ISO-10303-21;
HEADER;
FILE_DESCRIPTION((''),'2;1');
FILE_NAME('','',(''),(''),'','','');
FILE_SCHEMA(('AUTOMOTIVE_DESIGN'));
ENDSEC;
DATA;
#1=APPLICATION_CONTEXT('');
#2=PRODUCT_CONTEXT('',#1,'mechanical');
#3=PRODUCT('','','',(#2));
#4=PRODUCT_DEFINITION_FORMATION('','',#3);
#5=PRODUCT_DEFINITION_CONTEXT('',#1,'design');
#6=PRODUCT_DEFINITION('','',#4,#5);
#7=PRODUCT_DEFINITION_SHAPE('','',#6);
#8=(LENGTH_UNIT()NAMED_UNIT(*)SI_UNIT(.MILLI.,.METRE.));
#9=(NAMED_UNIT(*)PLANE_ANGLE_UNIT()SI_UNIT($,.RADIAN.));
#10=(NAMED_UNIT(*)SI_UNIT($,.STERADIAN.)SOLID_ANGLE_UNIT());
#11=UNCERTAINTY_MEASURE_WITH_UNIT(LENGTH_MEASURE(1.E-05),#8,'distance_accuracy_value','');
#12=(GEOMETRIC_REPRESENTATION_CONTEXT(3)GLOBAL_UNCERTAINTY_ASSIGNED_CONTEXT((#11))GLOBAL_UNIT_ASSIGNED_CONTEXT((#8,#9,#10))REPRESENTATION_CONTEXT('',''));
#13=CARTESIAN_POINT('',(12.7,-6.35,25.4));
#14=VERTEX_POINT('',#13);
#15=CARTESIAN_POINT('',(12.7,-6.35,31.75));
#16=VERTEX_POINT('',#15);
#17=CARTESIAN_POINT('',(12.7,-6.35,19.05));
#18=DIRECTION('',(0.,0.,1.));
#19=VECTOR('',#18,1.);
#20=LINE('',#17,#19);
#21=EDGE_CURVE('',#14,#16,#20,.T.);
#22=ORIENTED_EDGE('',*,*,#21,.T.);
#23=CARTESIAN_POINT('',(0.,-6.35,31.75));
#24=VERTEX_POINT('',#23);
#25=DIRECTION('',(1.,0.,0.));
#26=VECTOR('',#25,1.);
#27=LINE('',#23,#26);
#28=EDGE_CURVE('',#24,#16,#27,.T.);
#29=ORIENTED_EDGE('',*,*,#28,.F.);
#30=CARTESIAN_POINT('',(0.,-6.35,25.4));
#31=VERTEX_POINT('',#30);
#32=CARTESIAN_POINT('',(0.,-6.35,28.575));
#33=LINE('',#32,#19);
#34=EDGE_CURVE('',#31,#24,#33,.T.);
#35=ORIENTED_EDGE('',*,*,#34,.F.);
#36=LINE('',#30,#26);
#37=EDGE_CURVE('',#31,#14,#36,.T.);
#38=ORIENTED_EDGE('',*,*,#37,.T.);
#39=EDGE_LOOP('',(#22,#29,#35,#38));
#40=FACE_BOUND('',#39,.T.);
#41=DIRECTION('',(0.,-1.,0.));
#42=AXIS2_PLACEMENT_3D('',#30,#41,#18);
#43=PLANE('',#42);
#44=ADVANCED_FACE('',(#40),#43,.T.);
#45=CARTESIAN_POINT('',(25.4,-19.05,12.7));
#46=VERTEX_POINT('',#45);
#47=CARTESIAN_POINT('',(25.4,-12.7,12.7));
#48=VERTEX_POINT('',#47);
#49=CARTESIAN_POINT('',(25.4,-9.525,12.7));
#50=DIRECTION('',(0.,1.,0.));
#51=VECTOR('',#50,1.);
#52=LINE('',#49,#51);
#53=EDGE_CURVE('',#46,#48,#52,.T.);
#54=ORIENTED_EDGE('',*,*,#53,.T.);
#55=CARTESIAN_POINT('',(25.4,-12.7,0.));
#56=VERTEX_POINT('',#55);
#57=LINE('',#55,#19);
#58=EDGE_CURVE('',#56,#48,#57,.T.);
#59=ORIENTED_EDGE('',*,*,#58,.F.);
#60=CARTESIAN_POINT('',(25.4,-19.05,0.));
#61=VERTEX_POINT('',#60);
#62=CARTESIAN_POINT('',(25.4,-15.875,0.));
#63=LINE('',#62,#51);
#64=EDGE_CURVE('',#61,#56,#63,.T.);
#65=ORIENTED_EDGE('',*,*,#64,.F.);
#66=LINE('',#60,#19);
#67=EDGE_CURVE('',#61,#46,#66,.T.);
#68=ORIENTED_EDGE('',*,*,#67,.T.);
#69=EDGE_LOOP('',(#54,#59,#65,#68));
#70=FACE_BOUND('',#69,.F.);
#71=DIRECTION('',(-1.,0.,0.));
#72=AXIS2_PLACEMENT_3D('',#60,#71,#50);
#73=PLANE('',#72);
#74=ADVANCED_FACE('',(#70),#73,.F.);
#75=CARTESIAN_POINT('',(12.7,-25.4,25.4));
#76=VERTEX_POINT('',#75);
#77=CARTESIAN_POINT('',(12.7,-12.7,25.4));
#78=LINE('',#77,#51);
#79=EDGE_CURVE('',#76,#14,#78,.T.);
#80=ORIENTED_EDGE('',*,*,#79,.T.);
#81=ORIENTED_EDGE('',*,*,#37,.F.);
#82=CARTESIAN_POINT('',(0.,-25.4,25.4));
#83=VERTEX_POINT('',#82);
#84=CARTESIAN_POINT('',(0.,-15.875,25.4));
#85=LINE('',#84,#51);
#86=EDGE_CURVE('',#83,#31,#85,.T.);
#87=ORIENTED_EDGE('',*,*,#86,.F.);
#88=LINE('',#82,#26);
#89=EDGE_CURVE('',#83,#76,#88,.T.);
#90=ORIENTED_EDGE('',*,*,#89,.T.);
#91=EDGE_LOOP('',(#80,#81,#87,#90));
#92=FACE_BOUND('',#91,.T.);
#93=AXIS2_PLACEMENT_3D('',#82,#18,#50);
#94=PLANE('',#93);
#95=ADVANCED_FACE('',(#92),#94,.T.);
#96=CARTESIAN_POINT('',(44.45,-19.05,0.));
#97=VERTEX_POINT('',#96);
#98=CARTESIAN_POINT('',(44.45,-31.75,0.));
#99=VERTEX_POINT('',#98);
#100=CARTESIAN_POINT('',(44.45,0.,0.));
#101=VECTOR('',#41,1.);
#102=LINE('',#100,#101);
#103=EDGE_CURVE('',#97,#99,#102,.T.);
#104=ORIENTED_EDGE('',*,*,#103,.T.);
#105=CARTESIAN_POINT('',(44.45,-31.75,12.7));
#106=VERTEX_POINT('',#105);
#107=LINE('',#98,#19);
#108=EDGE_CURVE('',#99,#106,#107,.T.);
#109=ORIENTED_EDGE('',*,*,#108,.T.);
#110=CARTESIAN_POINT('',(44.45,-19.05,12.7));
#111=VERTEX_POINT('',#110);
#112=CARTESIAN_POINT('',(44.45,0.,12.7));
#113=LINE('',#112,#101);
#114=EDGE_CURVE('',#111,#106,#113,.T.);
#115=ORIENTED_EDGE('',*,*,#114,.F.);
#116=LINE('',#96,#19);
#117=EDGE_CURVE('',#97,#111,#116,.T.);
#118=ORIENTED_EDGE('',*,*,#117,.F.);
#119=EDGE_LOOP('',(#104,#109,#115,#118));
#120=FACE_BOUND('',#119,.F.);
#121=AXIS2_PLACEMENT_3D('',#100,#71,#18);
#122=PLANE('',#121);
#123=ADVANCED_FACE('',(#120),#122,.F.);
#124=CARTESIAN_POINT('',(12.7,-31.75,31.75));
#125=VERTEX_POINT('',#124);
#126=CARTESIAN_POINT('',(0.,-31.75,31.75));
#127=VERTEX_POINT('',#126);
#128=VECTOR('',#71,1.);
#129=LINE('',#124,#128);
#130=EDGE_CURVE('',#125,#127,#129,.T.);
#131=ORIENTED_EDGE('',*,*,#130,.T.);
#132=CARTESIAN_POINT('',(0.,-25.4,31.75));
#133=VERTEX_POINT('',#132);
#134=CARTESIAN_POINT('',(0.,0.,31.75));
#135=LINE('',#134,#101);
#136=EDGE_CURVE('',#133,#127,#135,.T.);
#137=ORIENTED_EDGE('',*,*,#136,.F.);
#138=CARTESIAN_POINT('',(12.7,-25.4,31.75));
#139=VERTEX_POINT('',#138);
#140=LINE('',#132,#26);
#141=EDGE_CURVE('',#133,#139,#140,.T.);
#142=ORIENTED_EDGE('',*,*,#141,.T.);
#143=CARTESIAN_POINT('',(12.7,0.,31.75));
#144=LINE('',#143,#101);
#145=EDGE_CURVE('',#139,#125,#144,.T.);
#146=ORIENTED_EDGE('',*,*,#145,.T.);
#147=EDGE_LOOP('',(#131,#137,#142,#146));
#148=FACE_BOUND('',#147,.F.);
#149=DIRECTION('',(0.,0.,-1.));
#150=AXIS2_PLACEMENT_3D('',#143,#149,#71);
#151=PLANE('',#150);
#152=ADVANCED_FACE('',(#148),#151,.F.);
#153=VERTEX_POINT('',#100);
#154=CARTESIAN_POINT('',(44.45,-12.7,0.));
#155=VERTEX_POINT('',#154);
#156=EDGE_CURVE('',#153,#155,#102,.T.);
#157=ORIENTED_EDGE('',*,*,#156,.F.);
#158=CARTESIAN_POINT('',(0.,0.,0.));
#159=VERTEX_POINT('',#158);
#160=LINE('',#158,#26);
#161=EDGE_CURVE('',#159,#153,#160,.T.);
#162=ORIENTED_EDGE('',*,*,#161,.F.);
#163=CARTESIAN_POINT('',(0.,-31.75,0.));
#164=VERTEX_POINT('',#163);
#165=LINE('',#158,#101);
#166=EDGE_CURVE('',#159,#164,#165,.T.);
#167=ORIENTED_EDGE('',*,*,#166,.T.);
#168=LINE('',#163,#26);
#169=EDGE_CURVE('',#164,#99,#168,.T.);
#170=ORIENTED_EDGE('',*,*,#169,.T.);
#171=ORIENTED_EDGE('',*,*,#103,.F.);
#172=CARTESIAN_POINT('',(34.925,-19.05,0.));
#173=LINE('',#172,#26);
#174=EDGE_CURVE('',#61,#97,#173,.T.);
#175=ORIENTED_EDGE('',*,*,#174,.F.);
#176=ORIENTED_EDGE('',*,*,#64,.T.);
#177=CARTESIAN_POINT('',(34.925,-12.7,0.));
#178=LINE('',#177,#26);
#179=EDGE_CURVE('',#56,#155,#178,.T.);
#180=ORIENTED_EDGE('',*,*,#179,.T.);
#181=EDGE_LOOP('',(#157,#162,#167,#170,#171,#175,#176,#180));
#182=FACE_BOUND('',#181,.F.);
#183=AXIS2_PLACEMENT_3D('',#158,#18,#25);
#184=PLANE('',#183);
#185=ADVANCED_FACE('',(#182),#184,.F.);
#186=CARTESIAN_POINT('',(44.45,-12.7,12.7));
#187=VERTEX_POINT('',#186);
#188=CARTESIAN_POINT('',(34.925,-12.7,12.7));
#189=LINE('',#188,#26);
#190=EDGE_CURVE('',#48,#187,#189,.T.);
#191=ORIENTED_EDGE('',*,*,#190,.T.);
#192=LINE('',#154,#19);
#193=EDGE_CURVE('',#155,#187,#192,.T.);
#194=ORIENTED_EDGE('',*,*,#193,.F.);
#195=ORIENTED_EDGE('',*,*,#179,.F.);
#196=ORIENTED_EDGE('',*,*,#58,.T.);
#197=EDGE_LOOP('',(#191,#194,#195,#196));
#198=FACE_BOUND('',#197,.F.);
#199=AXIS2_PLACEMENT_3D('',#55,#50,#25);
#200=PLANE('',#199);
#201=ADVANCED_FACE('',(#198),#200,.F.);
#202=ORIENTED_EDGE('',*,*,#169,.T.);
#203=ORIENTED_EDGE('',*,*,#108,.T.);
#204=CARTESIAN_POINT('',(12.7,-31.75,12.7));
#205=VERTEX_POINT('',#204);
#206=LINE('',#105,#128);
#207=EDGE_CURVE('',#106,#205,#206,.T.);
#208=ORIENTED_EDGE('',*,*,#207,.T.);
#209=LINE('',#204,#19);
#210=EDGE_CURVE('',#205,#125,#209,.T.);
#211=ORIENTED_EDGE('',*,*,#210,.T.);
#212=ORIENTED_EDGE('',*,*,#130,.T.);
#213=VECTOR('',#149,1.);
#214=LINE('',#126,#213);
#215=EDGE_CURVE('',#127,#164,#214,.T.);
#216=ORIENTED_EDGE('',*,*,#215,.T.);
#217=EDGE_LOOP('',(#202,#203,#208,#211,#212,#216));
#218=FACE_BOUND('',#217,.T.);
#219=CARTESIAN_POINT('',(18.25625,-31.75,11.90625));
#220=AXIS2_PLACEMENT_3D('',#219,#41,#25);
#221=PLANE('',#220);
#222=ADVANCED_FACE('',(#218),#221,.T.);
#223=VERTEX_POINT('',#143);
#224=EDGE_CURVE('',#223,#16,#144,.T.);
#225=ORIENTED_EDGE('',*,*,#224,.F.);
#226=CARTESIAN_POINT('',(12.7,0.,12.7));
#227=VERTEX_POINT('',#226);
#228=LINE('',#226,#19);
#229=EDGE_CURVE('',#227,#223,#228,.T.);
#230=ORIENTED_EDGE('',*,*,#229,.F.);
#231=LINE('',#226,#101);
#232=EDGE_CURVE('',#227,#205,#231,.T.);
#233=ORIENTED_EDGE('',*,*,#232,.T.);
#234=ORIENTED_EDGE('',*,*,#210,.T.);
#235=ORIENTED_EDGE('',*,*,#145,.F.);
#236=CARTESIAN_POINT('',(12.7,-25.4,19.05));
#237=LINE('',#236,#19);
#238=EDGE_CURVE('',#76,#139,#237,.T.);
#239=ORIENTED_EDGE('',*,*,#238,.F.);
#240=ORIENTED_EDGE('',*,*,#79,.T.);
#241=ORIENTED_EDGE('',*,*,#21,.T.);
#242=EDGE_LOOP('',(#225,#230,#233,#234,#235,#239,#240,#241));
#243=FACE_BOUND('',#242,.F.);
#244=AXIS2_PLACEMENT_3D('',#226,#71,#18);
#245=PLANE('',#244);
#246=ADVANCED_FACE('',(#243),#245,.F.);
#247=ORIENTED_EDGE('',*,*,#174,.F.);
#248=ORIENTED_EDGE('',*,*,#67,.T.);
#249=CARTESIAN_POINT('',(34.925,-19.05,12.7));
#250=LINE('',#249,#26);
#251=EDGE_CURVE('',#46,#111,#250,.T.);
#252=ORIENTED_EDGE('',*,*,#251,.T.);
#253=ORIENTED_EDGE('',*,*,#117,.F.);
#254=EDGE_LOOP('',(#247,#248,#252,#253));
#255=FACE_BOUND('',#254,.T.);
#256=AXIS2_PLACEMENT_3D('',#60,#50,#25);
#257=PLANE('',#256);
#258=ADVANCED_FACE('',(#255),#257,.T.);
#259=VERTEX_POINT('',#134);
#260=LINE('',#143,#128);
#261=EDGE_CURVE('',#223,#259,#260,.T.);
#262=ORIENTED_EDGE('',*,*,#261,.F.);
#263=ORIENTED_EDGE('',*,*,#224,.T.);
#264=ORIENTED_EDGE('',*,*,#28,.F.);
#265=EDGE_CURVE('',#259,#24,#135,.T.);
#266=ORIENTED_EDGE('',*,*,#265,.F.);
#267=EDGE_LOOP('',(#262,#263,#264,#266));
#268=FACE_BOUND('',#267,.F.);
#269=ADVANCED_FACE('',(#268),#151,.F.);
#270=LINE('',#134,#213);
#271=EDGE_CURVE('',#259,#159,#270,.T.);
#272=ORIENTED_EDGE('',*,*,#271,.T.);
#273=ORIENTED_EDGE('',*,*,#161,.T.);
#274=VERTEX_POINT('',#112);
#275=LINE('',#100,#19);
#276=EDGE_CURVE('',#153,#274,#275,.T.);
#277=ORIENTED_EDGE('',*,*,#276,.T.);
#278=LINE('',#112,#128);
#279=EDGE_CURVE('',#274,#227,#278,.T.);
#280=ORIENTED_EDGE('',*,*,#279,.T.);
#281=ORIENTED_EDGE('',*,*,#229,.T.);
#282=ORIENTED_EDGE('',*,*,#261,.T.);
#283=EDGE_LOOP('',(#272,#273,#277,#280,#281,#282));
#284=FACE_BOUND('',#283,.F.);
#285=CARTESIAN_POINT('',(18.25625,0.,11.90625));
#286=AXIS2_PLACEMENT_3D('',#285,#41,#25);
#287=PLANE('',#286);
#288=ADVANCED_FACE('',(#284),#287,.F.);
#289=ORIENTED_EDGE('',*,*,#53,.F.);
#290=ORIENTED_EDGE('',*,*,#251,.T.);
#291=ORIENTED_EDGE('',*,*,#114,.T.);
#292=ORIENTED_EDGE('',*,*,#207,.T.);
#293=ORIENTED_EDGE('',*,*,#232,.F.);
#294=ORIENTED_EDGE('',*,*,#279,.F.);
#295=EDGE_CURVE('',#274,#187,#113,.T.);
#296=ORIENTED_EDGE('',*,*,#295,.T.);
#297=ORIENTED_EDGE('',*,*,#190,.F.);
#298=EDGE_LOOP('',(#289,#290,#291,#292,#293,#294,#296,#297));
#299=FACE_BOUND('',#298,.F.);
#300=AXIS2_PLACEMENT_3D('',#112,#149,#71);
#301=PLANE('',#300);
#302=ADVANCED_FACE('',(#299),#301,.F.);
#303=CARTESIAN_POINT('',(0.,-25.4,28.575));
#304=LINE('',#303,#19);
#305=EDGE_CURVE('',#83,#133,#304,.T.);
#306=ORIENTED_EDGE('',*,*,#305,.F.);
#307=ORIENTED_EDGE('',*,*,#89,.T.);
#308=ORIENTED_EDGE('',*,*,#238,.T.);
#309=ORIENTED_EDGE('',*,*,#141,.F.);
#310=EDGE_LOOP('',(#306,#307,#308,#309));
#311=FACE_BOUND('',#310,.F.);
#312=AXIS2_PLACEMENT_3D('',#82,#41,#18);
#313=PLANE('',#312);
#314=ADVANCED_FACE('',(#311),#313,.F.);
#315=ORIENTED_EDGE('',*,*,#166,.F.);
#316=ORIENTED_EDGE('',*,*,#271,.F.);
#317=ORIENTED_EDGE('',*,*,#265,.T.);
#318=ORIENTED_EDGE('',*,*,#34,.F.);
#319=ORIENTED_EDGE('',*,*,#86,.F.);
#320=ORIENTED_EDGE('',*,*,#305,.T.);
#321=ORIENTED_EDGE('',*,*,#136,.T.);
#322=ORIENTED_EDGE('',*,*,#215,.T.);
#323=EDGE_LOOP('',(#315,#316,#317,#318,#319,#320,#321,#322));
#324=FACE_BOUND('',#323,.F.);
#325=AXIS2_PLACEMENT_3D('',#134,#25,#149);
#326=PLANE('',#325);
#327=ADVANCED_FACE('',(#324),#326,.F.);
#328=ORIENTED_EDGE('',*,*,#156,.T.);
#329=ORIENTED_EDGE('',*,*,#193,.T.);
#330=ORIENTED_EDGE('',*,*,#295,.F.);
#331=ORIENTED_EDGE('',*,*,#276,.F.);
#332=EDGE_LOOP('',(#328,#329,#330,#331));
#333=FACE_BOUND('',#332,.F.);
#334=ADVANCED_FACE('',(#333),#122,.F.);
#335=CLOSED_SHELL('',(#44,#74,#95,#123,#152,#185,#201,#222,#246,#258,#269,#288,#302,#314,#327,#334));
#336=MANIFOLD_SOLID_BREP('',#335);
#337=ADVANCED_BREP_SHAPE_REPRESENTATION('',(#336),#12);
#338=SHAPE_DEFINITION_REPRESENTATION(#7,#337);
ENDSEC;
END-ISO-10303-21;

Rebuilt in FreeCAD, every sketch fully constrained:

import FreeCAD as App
import Part
import Sketcher
from FreeCAD import Vector
Q = App.Units.Quantity

doc = App.newDocument("Part")
params = doc.addObject("Spreadsheet::Sheet", "Params")
for row, (alias, value) in enumerate([
    ("sketch1_width", "0.5 in"),
    ("sketch1_width2", "1.75 in"),
    ("pad1_length", "1.25 in"),
    ("sketch2_width", "0.75 in"),
    ("sketch2_height", "0.25 in"),
    ("pocket1_length", "1.09 in"),
    ("sketch3_width", "0.75 in"),
    ("sketch3_height", "0.25 in"),
    ("pocket2_length", "2.847 in"),
], start=1):
    params.set(f"A{row}", alias)
    params.set(f"B{row}", "=" + value)
    params.setAlias(f"B{row}", alias)

body = doc.addObject("PartDesign::Body", "Body")

# Sketch on XZ plane
sketch1 = body.newObject("Sketcher::SketchObject", "Sketch")
sketch1.AttachmentSupport = (doc.getObject("XZ_Plane"), [""])
sketch1.MapMode = "FlatFace"
sketch1.addGeometry([
    Part.LineSegment(Vector(0, 32, 0), Vector(0, 0, 0)),  # 0
    Part.LineSegment(Vector(0, 0, 0), Vector(44, 0, 0)),  # 1
    Part.LineSegment(Vector(44, 0, 0), Vector(44, 13, 0)),  # 2
    Part.LineSegment(Vector(44, 13, 0), Vector(13, 13, 0)),  # 3
    Part.LineSegment(Vector(13, 13, 0), Vector(13, 32, 0)),  # 4
    Part.LineSegment(Vector(13, 32, 0), Vector(0, 32, 0)),  # 5
], False)
sketch1.addConstraint([
    Sketcher.Constraint("Coincident", 0, 2, 1, 1),
    Sketcher.Constraint("Coincident", 1, 2, 2, 1),
    Sketcher.Constraint("Coincident", 2, 2, 3, 1),
    Sketcher.Constraint("Coincident", 3, 2, 4, 1),
    Sketcher.Constraint("Coincident", 4, 2, 5, 1),
    Sketcher.Constraint("Coincident", 5, 2, 0, 1),
    Sketcher.Constraint("Vertical", 0),
    Sketcher.Constraint("Horizontal", 1),
    Sketcher.Constraint("Vertical", 2),
    Sketcher.Constraint("Horizontal", 3),
    Sketcher.Constraint("Vertical", 4),
    Sketcher.Constraint("Horizontal", 5),
    Sketcher.Constraint("Coincident", 0, 2, -1, 1),
    Sketcher.Constraint("Equal", 3, 0),
    Sketcher.Constraint("Equal", 5, 2),
    Sketcher.Constraint("DistanceX", 5, 2, 5, 1, Q("0.5 in")),
    Sketcher.Constraint("DistanceX", 1, 1, 1, 2, Q("1.75 in")),
])
sketch1.setExpression("Constraints[15]", "Params.sketch1_width")
sketch1.setExpression("Constraints[16]", "Params.sketch1_width2")
pad1 = body.newObject("PartDesign::Pad", "Pad")
pad1.Profile = sketch1
pad1.setExpression("Length", "Params.pad1_length")

# Sketch on YZ plane
sketch2 = body.newObject("Sketcher::SketchObject", "Sketch001")
sketch2.AttachmentSupport = (doc.getObject("YZ_Plane"), [""])
sketch2.MapMode = "FlatFace"
sketch2.addGeometry([
    Part.LineSegment(Vector(-25, 32, 0), Vector(-25, 25, 0)),
    Part.LineSegment(Vector(-25, 25, 0), Vector(-6, 25, 0)),
    Part.LineSegment(Vector(-6, 25, 0), Vector(-6, 32, 0)),
    Part.LineSegment(Vector(-6, 32, 0), Vector(-25, 32, 0)),
], False)
sketch2.addConstraint([
    Sketcher.Constraint("Coincident", 0, 2, 1, 1),
    Sketcher.Constraint("Coincident", 1, 2, 2, 1),
    Sketcher.Constraint("Coincident", 2, 2, 3, 1),
    Sketcher.Constraint("Coincident", 3, 2, 0, 1),
    Sketcher.Constraint("Vertical", 0),
    Sketcher.Constraint("Horizontal", 1),
    Sketcher.Constraint("Vertical", 2),
    Sketcher.Constraint("Horizontal", 3),
    Sketcher.Constraint("DistanceX", 0, 2, -1, 1, Q("1 in")),
    Sketcher.Constraint("DistanceY", -1, 1, 0, 2, Q("1 in")),
    Sketcher.Constraint("DistanceX", 1, 1, 1, 2, Q("0.75 in")),
    Sketcher.Constraint("DistanceY", 0, 2, 0, 1, Q("0.25 in")),
])
sketch2.setExpression("Constraints[10]", "Params.sketch2_width")
sketch2.setExpression("Constraints[11]", "Params.sketch2_height")
pocket1 = body.newObject("PartDesign::Pocket", "Pocket")
pocket1.Profile = sketch2
pocket1.setExpression("Length", "Params.pocket1_length")
pocket1.Reversed = True

# Sketch on XY plane
sketch3 = body.newObject("Sketcher::SketchObject", "Sketch002")
sketch3.AttachmentSupport = (doc.getObject("XY_Plane"), [""])
sketch3.MapMode = "FlatFace"
sketch3.addGeometry([
    Part.LineSegment(Vector(25, -13, 0), Vector(25, -19, 0)),
    Part.LineSegment(Vector(25, -19, 0), Vector(44, -19, 0)),
    Part.LineSegment(Vector(44, -19, 0), Vector(44, -13, 0)),
    Part.LineSegment(Vector(44, -13, 0), Vector(25, -13, 0)),
], False)
sketch3.addConstraint([
    Sketcher.Constraint("Coincident", 0, 2, 1, 1),
    Sketcher.Constraint("Coincident", 1, 2, 2, 1),
    Sketcher.Constraint("Coincident", 2, 2, 3, 1),
    Sketcher.Constraint("Coincident", 3, 2, 0, 1),
    Sketcher.Constraint("Vertical", 0),
    Sketcher.Constraint("Horizontal", 1),
    Sketcher.Constraint("Vertical", 2),
    Sketcher.Constraint("Horizontal", 3),
    Sketcher.Constraint("DistanceX", -1, 1, 0, 2, Q("1 in")),
    Sketcher.Constraint("DistanceX", 1, 1, 1, 2, Q("0.75 in")),
    Sketcher.Constraint("DistanceY", 0, 2, 0, 1, Q("0.25 in")),
    Sketcher.Constraint("DistanceY", 2, 2, -1, 1, Q("0.5 in")),
])
sketch3.setExpression("Constraints[9]", "Params.sketch3_width")
sketch3.setExpression("Constraints[10]", "Params.sketch3_height")
pocket2 = body.newObject("PartDesign::Pocket", "Pocket001")
pocket2.Profile = sketch3
pocket2.setExpression("Length", "Params.pocket2_length")
pocket2.Reversed = True

doc.recompute()
